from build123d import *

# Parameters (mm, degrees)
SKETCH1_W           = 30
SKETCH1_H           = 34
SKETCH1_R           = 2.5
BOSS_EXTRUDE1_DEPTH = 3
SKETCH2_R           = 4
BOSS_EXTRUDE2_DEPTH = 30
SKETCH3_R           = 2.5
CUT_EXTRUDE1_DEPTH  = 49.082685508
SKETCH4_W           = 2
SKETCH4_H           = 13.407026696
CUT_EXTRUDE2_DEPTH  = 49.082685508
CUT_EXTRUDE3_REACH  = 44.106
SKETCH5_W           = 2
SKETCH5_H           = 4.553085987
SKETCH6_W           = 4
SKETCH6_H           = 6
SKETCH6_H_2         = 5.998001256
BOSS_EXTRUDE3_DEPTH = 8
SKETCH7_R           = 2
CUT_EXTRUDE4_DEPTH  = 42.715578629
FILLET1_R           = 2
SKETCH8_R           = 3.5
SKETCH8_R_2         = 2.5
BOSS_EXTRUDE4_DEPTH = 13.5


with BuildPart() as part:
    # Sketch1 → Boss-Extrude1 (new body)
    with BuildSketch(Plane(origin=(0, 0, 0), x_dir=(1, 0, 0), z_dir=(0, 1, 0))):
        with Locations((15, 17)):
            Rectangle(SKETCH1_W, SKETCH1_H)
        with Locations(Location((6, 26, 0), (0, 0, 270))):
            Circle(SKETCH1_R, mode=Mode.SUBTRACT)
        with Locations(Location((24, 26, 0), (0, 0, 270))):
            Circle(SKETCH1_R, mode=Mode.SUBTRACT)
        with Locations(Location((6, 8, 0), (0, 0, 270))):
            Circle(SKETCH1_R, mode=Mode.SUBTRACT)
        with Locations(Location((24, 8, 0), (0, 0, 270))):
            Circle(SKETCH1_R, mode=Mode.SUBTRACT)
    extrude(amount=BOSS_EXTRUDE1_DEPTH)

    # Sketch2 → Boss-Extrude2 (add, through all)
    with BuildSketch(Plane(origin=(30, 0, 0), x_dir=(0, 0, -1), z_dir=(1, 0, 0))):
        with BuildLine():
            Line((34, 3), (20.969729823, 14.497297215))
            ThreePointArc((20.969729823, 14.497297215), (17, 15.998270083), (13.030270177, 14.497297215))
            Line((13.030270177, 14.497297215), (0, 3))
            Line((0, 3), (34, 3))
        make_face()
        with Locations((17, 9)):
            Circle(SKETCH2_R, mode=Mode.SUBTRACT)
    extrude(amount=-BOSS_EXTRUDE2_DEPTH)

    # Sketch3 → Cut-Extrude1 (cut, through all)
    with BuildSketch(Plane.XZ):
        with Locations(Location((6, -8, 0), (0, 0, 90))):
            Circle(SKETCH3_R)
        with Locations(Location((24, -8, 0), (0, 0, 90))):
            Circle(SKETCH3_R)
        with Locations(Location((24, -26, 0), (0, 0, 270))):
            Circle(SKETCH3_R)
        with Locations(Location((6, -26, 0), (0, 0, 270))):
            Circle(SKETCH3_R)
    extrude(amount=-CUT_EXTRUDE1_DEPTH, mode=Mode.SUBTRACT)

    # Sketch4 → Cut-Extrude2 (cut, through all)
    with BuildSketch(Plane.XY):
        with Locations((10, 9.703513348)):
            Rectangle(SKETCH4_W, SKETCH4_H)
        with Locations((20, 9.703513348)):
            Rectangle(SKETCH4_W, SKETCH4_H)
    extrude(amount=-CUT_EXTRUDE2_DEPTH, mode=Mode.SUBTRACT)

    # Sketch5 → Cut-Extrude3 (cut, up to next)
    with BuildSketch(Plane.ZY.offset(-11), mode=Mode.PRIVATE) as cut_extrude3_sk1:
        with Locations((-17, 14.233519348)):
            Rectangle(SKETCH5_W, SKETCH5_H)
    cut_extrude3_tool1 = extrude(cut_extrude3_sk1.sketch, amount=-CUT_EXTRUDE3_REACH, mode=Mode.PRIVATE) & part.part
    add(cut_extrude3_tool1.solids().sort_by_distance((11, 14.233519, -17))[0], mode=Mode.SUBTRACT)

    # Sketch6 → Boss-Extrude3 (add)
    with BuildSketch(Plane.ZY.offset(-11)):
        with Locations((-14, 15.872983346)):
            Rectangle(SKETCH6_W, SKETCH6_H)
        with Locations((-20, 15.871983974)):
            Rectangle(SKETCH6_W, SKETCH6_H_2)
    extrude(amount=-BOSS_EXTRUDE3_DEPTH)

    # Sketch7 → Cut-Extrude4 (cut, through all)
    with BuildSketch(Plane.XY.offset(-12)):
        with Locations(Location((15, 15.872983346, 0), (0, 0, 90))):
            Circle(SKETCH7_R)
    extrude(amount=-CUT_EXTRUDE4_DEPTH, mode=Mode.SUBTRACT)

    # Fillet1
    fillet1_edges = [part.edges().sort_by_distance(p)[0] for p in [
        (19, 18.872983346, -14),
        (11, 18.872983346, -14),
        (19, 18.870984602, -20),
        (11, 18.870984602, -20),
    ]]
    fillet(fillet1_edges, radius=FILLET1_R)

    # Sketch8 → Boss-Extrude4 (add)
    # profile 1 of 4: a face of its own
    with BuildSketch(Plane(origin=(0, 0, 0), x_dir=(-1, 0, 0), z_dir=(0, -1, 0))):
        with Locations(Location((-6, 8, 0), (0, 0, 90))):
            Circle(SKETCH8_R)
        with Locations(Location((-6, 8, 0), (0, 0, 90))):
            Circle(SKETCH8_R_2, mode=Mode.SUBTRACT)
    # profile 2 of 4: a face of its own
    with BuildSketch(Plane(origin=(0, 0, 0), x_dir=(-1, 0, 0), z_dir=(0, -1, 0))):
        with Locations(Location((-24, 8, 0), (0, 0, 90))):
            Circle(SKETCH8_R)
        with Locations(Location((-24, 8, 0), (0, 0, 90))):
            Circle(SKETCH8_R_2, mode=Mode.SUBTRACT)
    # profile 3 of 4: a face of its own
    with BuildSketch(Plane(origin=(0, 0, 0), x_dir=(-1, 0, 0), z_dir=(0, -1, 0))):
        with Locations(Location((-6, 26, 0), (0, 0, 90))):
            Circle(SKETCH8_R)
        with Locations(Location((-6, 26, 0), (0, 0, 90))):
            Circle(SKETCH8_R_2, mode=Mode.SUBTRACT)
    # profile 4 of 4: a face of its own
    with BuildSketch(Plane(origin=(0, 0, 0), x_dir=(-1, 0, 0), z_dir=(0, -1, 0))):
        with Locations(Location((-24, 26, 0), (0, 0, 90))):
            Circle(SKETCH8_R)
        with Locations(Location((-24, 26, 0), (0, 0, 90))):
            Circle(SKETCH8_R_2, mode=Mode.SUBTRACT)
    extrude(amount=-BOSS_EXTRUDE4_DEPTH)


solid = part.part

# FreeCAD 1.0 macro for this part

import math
import FreeCAD as App
import Part
import Sketcher
Q = App.Units.Quantity


def edges_at(feature, points):
    """Names of the edges that pass closest to the given points."""
    edges = feature.Shape.Edges
    near = lambda p: min(range(len(edges)), key=lambda i: edges[i].distToShape(Part.Vertex(*p))[0])
    return sorted({f"Edge{near(p) + 1}" for p in points})


def add_polygon(sketch, points):
    """Adds a closed chain of lines whose ends are joined by coincident constraints."""
    first, n = sketch.GeometryCount, len(points)
    for a, b in zip(points, points[1:] + points[:1]):
        sketch.addGeometry(Part.LineSegment(App.Vector(*a, 0), App.Vector(*b, 0)), False)
    for i in range(n):
        sketch.addConstraint(Sketcher.Constraint("Coincident", first + i, 2, first + (i + 1) % n, 1))

doc = App.newDocument("Part")
body = doc.addObject("PartDesign::Body", "Body")

sketch1 = doc.addObject("Sketcher::SketchObject", "Sketch")
body.addObject(sketch1)
sketch1.AttachmentSupport = (doc.XZ_Plane, [""])
sketch1.MapMode = "FlatFace"
add_polygon(sketch1, [(0, -34), (0, 0), (30, 0), (30, -34)])
sketch1.addGeometry(Part.Circle(App.Vector(6, -8, 0), App.Vector(0, 0, 1), 2.5), False)
sketch1.addGeometry(Part.Circle(App.Vector(24, -8, 0), App.Vector(0, 0, 1), 2.5), False)
sketch1.addGeometry(Part.Circle(App.Vector(6, -26, 0), App.Vector(0, 0, 1), 2.5), False)
sketch1.addGeometry(Part.Circle(App.Vector(24, -26, 0), App.Vector(0, 0, 1), 2.5), False)
sketch1.addConstraint([
    Sketcher.Constraint("Vertical", 0),
    Sketcher.Constraint("Horizontal", 1),
    Sketcher.Constraint("Vertical", 2),
    Sketcher.Constraint("Horizontal", 3),
    Sketcher.Constraint("Coincident", 0, 2, -1, 1),
    Sketcher.Constraint("Equal", 4, 5),
    Sketcher.Constraint("Equal", 5, 6),
    Sketcher.Constraint("Equal", 6, 7),
    Sketcher.Constraint("Horizontal", 4, 3, 5, 3),
    Sketcher.Constraint("Horizontal", 6, 3, 7, 3),
    Sketcher.Constraint("Vertical", 4, 3, 6, 3),
    Sketcher.Constraint("Vertical", 5, 3, 7, 3),
    Sketcher.Constraint("Diameter", 4, Q("5 mm")),
    Sketcher.Constraint("DistanceX", 1, 1, 1, 2, Q("30 mm")),
    Sketcher.Constraint("DistanceY", 0, 1, 0, 2, Q("34 mm")),
    Sketcher.Constraint("DistanceX", -1, 1, 4, 3, Q("6 mm")),
    Sketcher.Constraint("DistanceY", 4, 3, -1, 1, Q("8 mm")),
    Sketcher.Constraint("DistanceX", -1, 1, 5, 3, Q("24 mm")),
    Sketcher.Constraint("DistanceY", 6, 3, -1, 1, Q("26 mm")),
])
pad1 = doc.addObject("PartDesign::Pad", "Pad")
body.addObject(pad1)
pad1.Profile = sketch1
pad1.Length = 3
pad1.Reversed = True

sketch2 = doc.addObject("Sketcher::SketchObject", "Sketch001")
body.addObject(sketch2)
sketch2.AttachmentSupport = (doc.YZ_Plane, [""])
sketch2.MapMode = "FlatFace"
sketch2.AttachmentOffset = App.Placement(App.Vector(0, 0, 30), App.Rotation())
sketch2.addGeometry([
    Part.LineSegment(App.Vector(3, -34, 0), App.Vector(14.5, -21, 0)),
    Part.ArcOfCircle(Part.Circle(App.Vector(10, -17, 0), App.Vector(0, 0, 1), 6), math.radians(-41), math.radians(41)),
    Part.LineSegment(App.Vector(14.5, -13, 0), App.Vector(3, 0, 0)),
    Part.LineSegment(App.Vector(3, 0, 0), App.Vector(3, -34, 0)),
    Part.Circle(App.Vector(9, -17, 0), App.Vector(0, 0, 1), 4),
], False)
sketch2.addConstraint([
    Sketcher.Constraint("Tangent", 0, 2, 1, 1),
    Sketcher.Constraint("Tangent", 1, 2, 2, 1),
    Sketcher.Constraint("Coincident", 2, 2, 3, 1),
    Sketcher.Constraint("Coincident", 3, 2, 0, 1),
    Sketcher.Constraint("Vertical", 3),
    Sketcher.Constraint("PointOnObject", 2, 2, -1),
    Sketcher.Constraint("Horizontal", 1, 3, 4, 3),
    Sketcher.Constraint("Vertical", 0, 2, 1, 2),
    Sketcher.Constraint("Diameter", 4, Q("8 mm")),
    Sketcher.Constraint("Radius", 1, Q("6 mm")),
    Sketcher.Constraint("DistanceY", 3, 2, 3, 1, Q("34 mm")),
    Sketcher.Constraint("DistanceX", -1, 1, 4, 3, Q("9 mm")),
    Sketcher.Constraint("DistanceX", -1, 1, 2, 2, Q("3 mm")),
    Sketcher.Constraint("Distance", 0, Q("17.37745 mm")),
])
pad2 = doc.addObject("PartDesign::Pad", "Pad001")
body.addObject(pad2)
pad2.Profile = sketch2
pad2.Length = 30
pad2.Reversed = True

sketch3 = doc.addObject("Sketcher::SketchObject", "Sketch002")
body.addObject(sketch3)
sketch3.AttachmentSupport = (doc.XZ_Plane, [""])
sketch3.MapMode = "FlatFace"
sketch3.addGeometry([
    Part.Circle(App.Vector(6, -8, 0), App.Vector(0, 0, 1), 2.5),
    Part.Circle(App.Vector(24, -8, 0), App.Vector(0, 0, 1), 2.5),
    Part.Circle(App.Vector(24, -26, 0), App.Vector(0, 0, 1), 2.5),
    Part.Circle(App.Vector(6, -26, 0), App.Vector(0, 0, 1), 2.5),
], False)
sketch3.addConstraint([
    Sketcher.Constraint("Equal", 0, 1),
    Sketcher.Constraint("Equal", 1, 2),
    Sketcher.Constraint("Equal", 2, 3),
    Sketcher.Constraint("Horizontal", 0, 3, 1, 3),
    Sketcher.Constraint("Horizontal", 2, 3, 3, 3),
    Sketcher.Constraint("Vertical", 1, 3, 2, 3),
    Sketcher.Constraint("Vertical", 0, 3, 3, 3),
    Sketcher.Constraint("Diameter", 0, Q("5 mm")),
    Sketcher.Constraint("DistanceX", -1, 1, 0, 3, Q("6 mm")),
    Sketcher.Constraint("DistanceY", 0, 3, -1, 1, Q("8 mm")),
    Sketcher.Constraint("DistanceX", -1, 1, 1, 3, Q("24 mm")),
    Sketcher.Constraint("DistanceY", 2, 3, -1, 1, Q("26 mm")),
])
pocket1 = doc.addObject("PartDesign::Pocket", "Pocket")
body.addObject(pocket1)
pocket1.Profile = sketch3
pocket1.Type = "ThroughAll"

sketch4 = doc.addObject("Sketcher::SketchObject", "Sketch003")
body.addObject(sketch4)
sketch4.AttachmentSupport = (doc.XY_Plane, [""])
sketch4.MapMode = "FlatFace"
add_polygon(sketch4, [(9, 16.4), (9, 3), (11, 3), (11, 16.4)])
add_polygon(sketch4, [(19, 16.4), (19, 3), (21, 3), (21, 16.4)])
sketch4.addConstraint([
    Sketcher.Constraint("Vertical", 0),
    Sketcher.Constraint("Horizontal", 1),
    Sketcher.Constraint("Vertical", 2),
    Sketcher.Constraint("Horizontal", 3),
    Sketcher.Constraint("Vertical", 4),
    Sketcher.Constraint("Horizontal", 5),
    Sketcher.Constraint("Vertical", 6),
    Sketcher.Constraint("Horizontal", 7),
    Sketcher.Constraint("Horizontal", 1, 2, 4, 2),
    Sketcher.Constraint("Horizontal", 3, 2, 6, 2),
    Sketcher.Constraint("Equal", 3, 5),
    Sketcher.Constraint("DistanceX", 1, 1, 1, 2, Q("2 mm")),
    Sketcher.Constraint("DistanceX", -1, 1, 0, 2, Q("9 mm")),
    Sketcher.Constraint("DistanceY", -1, 1, 0, 2, Q("3 mm")),
    Sketcher.Constraint("DistanceX", -1, 1, 4, 2, Q("19 mm")),
    Sketcher.Constraint("DistanceY", 0, 2, 0, 1, Q("13.407027 mm")),
])
pocket2 = doc.addObject("PartDesign::Pocket", "Pocket001")
body.addObject(pocket2)
pocket2.Profile = sketch4
pocket2.Type = "ThroughAll"

sketch5 = doc.addObject("Sketcher::SketchObject", "Sketch004")
body.addObject(sketch5)
sketch5.AttachmentSupport = (doc.YZ_Plane, [""])
sketch5.MapMode = "FlatFace"
sketch5.AttachmentOffset = App.Placement(App.Vector(0, 0, 11), App.Rotation())
add_polygon(sketch5, [(16.5, -18), (12, -18), (12, -16), (16.5, -16)])
sketch5.addConstraint([
    Sketcher.Constraint("Horizontal", 0),
    Sketcher.Constraint("Vertical", 1),
    Sketcher.Constraint("Horizontal", 2),
    Sketcher.Constraint("Vertical", 3),
    Sketcher.Constraint("DistanceY", 1, 1, 1, 2, Q("2 mm")),
    Sketcher.Constraint("DistanceY", 0, 2, -1, 1, Q("18 mm")),
    Sketcher.Constraint("DistanceX", 0, 2, 0, 1, Q("4.553086 mm")),
    Sketcher.Constraint("DistanceX", -1, 1, 0, 2, Q("11.956976 mm")),
])
pocket3 = doc.addObject("PartDesign::Pocket", "Pocket002")
body.addObject(pocket3)
pocket3.Profile = sketch5
pocket3.Type = "UpToFirst"
pocket3.Reversed = True

sketch6 = doc.addObject("Sketcher::SketchObject", "Sketch005")
body.addObject(sketch6)
sketch6.AttachmentSupport = (doc.YZ_Plane, [""])
sketch6.MapMode = "FlatFace"
sketch6.AttachmentOffset = App.Placement(App.Vector(0, 0, 11), App.Rotation())
add_polygon(sketch6, [(18.9, -16), (12.9, -16), (12.9, -12), (18.9, -12)])
add_polygon(sketch6, [(18.9, -22), (12.9, -22), (12.9, -18), (18.9, -18)])
sketch6.addConstraint([
    Sketcher.Constraint("Horizontal", 0),
    Sketcher.Constraint("Vertical", 1),
    Sketcher.Constraint("Horizontal", 2),
    Sketcher.Constraint("Vertical", 3),
    Sketcher.Constraint("Horizontal", 4),
    Sketcher.Constraint("Vertical", 5),
    Sketcher.Constraint("Horizontal", 6),
    Sketcher.Constraint("Vertical", 7),
    Sketcher.Constraint("Vertical", 1, 2, 4, 2),
    Sketcher.Constraint("Equal", 3, 5),
    Sketcher.Constraint("DistanceX", 0, 2, 0, 1, Q("6 mm")),
    Sketcher.Constraint("DistanceY", 1, 1, 1, 2, Q("4 mm")),
    Sketcher.Constraint("DistanceY", 0, 2, -1, 1, Q("16 mm")),
    Sketcher.Constraint("DistanceY", 4, 2, -1, 1, Q("22 mm")),
    Sketcher.Constraint("DistanceX", 4, 2, 4, 1, Q("5.998001 mm")),
    Sketcher.Constraint("DistanceX", -1, 1, 0, 2, Q("12.872983 mm")),
])
pad3 = doc.addObject("PartDesign::Pad", "Pad002")
body.addObject(pad3)
pad3.Profile = sketch6
pad3.Length = 8

sketch7 = doc.addObject("Sketcher::SketchObject", "Sketch006")
body.addObject(sketch7)
sketch7.AttachmentSupport = (doc.XY_Plane, [""])
sketch7.MapMode = "FlatFace"
sketch7.AttachmentOffset = App.Placement(App.Vector(0, 0, -12), App.Rotation())
sketch7.addGeometry(Part.Circle(App.Vector(15, 15.9, 0), App.Vector(0, 0, 1), 2), False)
sketch7.addConstraint([
    Sketcher.Constraint("Diameter", 0, Q("4 mm")),
    Sketcher.Constraint("DistanceX", -1, 1, 0, 3, Q("15 mm")),
    Sketcher.Constraint("DistanceY", -1, 1, 0, 3, Q("15.872983 mm")),
])
pocket4 = doc.addObject("PartDesign::Pocket", "Pocket003")
body.addObject(pocket4)
pocket4.Profile = sketch7
pocket4.Type = "ThroughAll"
doc.recompute()

fillet = doc.addObject("PartDesign::Fillet", "Fillet")
body.addObject(fillet)
fillet.Base = (pocket4, edges_at(pocket4, [
    (19, 18.873, -14),
    (11, 18.873, -14),
    (19, 18.871, -20),
    (11, 18.871, -20),
]))
fillet.Radius = 2

sketch8 = doc.addObject("Sketcher::SketchObject", "Sketch007")
body.addObject(sketch8)
sketch8.AttachmentSupport = (doc.XZ_Plane, [""])
sketch8.MapMode = "FlatFace"
sketch8.addGeometry([
    Part.Circle(App.Vector(6, -8, 0), App.Vector(0, 0, 1), 3.5),
    Part.Circle(App.Vector(6, -8, 0), App.Vector(0, 0, 1), 2.5),
    Part.Circle(App.Vector(24, -8, 0), App.Vector(0, 0, 1), 3.5),
    Part.Circle(App.Vector(24, -8, 0), App.Vector(0, 0, 1), 2.5),
    Part.Circle(App.Vector(6, -26, 0), App.Vector(0, 0, 1), 3.5),
    Part.Circle(App.Vector(6, -26, 0), App.Vector(0, 0, 1), 2.5),
    Part.Circle(App.Vector(24, -26, 0), App.Vector(0, 0, 1), 3.5),
    Part.Circle(App.Vector(24, -26, 0), App.Vector(0, 0, 1), 2.5),
], False)
sketch8.addConstraint([
    Sketcher.Constraint("Coincident", 1, 3, 0, 3),
    Sketcher.Constraint("Coincident", 3, 3, 2, 3),
    Sketcher.Constraint("Coincident", 5, 3, 4, 3),
    Sketcher.Constraint("Coincident", 7, 3, 6, 3),
    Sketcher.Constraint("Equal", 0, 2),
    Sketcher.Constraint("Equal", 1, 3),
    Sketcher.Constraint("Equal", 2, 4),
    Sketcher.Constraint("Equal", 3, 5),
    Sketcher.Constraint("Equal", 4, 6),
    Sketcher.Constraint("Equal", 5, 7),
    Sketcher.Constraint("Horizontal", 1, 3, 2, 3),
    Sketcher.Constraint("Horizontal", 5, 3, 6, 3),
    Sketcher.Constraint("Vertical", 1, 3, 4, 3),
    Sketcher.Constraint("Vertical", 3, 3, 6, 3),
    Sketcher.Constraint("Diameter", 0, Q("7 mm")),
    Sketcher.Constraint("Diameter", 1, Q("5 mm")),
    Sketcher.Constraint("DistanceX", -1, 1, 0, 3, Q("6 mm")),
    Sketcher.Constraint("DistanceY", 0, 3, -1, 1, Q("8 mm")),
    Sketcher.Constraint("DistanceX", -1, 1, 2, 3, Q("24 mm")),
    Sketcher.Constraint("DistanceY", 4, 3, -1, 1, Q("26 mm")),
])
pad4 = doc.addObject("PartDesign::Pad", "Pad003")
body.addObject(pad4)
pad4.Profile = sketch8
pad4.Length = 13.5
pad4.Reversed = True

doc.recompute()
